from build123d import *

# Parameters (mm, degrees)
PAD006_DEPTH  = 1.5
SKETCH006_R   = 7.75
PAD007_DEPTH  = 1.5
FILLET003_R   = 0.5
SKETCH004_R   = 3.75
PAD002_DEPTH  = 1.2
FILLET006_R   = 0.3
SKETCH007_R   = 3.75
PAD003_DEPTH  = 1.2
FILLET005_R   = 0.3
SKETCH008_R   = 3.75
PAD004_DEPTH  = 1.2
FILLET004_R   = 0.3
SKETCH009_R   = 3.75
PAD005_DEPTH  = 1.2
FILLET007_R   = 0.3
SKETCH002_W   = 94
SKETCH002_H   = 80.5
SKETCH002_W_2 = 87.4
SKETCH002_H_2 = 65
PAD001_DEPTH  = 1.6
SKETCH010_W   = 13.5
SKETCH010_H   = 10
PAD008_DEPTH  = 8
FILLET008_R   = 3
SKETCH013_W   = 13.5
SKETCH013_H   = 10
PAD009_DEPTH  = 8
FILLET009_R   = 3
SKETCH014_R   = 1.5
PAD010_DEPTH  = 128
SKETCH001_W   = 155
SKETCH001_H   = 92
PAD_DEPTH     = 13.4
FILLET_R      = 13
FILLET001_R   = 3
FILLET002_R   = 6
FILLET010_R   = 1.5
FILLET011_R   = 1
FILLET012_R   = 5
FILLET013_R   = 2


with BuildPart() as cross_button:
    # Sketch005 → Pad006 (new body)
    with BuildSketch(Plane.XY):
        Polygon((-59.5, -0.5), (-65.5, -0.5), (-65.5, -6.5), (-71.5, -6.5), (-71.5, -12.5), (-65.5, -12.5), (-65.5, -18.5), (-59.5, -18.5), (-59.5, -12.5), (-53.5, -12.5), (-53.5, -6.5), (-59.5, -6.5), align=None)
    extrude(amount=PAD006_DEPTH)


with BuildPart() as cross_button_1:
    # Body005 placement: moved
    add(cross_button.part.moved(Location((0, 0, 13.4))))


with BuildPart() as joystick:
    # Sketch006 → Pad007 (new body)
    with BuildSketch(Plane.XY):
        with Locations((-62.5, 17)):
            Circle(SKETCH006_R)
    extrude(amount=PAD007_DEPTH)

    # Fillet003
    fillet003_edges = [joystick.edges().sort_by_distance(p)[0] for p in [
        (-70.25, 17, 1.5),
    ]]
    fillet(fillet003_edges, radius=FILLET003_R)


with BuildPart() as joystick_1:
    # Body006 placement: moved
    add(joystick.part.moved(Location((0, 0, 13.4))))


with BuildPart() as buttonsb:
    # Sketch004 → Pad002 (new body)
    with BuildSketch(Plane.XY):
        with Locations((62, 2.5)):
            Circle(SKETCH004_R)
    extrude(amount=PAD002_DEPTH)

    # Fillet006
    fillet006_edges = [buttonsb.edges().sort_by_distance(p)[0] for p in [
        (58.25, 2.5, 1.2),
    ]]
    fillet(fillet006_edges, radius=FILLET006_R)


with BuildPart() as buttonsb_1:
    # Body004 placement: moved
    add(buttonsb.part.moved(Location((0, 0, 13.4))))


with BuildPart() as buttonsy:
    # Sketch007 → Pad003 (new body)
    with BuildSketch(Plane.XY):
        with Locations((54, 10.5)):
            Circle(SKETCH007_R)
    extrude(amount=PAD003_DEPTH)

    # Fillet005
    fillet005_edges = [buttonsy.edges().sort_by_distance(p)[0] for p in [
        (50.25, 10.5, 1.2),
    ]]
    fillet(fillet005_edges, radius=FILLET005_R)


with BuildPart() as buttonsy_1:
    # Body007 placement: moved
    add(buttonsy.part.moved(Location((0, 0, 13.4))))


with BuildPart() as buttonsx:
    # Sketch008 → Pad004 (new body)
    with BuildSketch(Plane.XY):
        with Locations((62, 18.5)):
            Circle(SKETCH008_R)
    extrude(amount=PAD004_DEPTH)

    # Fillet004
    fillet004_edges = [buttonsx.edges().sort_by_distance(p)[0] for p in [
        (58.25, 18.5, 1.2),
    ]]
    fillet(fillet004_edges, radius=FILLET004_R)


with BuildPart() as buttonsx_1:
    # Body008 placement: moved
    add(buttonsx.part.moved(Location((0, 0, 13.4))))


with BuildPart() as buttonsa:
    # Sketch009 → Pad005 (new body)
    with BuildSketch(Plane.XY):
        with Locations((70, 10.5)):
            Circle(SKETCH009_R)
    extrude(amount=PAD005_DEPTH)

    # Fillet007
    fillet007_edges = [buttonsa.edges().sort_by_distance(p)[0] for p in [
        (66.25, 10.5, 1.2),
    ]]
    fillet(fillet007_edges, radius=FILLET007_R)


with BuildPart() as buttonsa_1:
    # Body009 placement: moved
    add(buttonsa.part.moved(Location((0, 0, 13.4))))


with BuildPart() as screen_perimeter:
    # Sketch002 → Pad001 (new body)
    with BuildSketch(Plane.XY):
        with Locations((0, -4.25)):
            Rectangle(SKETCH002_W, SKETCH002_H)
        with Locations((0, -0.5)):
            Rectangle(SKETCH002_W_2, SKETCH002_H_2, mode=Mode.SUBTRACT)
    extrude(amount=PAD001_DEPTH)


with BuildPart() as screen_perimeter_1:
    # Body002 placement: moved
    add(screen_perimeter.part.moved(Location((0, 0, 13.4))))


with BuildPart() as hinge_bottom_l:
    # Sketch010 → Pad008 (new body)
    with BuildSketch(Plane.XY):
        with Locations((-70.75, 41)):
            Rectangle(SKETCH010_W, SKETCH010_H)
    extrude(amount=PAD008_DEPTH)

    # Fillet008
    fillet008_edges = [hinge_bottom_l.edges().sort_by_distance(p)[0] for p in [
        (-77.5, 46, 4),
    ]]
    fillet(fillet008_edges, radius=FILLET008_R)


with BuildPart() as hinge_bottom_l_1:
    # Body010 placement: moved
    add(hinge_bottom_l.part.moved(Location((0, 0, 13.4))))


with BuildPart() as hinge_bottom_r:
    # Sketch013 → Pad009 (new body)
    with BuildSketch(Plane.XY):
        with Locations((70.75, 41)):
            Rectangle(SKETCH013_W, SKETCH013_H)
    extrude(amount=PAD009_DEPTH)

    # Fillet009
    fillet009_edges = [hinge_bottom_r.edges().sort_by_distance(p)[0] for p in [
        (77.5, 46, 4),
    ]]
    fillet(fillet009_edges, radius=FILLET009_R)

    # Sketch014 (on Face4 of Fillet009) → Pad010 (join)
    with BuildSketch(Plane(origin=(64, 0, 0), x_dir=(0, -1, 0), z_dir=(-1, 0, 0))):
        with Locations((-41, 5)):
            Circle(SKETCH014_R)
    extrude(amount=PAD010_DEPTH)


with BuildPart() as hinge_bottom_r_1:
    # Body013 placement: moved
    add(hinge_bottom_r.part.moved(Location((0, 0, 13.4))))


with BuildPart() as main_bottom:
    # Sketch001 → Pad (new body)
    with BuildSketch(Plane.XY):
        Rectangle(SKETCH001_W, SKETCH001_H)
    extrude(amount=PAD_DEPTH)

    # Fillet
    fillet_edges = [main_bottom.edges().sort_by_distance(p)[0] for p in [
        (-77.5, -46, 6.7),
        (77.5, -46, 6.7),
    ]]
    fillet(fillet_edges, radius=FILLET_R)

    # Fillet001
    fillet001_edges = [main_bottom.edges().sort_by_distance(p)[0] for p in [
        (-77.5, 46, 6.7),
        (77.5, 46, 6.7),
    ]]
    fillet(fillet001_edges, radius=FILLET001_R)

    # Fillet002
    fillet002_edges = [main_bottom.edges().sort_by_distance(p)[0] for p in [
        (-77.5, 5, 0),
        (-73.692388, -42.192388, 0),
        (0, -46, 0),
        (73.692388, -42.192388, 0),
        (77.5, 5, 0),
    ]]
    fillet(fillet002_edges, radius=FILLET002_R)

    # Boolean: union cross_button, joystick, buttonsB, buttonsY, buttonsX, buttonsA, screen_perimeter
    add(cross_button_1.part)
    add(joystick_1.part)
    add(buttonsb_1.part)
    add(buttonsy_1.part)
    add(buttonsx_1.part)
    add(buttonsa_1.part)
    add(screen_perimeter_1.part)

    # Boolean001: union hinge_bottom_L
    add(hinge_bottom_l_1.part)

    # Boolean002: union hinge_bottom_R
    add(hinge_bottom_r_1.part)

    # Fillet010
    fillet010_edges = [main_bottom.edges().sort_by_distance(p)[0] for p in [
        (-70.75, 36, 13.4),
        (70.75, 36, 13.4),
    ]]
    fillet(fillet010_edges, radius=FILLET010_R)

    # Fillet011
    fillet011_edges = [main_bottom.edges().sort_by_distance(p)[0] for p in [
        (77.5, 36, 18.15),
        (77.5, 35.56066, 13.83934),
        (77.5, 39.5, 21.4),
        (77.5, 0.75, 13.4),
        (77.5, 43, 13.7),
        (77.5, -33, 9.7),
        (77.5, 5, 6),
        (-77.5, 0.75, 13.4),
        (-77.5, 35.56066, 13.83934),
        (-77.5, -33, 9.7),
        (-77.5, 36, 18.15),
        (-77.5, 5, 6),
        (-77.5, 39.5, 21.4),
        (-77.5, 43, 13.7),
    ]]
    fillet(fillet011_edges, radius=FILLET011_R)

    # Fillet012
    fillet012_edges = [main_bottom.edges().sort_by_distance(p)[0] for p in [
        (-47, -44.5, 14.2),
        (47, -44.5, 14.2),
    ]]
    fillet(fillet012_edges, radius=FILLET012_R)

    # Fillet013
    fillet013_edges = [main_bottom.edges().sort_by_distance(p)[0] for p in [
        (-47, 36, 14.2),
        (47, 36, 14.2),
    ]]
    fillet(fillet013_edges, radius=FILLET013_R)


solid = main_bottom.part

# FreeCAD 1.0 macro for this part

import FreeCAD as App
import Part
import Sketcher
from FreeCAD import Vector
Q = App.Units.Quantity


def edges_at(feature, points):
    """Names of the edges that pass closest to the given points."""
    edges = feature.Shape.Edges
    near = lambda p: min(range(len(edges)), key=lambda i: edges[i].distToShape(Part.Vertex(*p))[0])
    return sorted({f"Edge{near(p) + 1}" for p in points})


def add_polygon(sketch, points):
    """Adds a closed chain of lines whose ends are joined by coincident constraints."""
    first, n = sketch.GeometryCount, len(points)
    for a, b in zip(points, points[1:] + points[:1]):
        sketch.addGeometry(Part.LineSegment(App.Vector(*a, 0), App.Vector(*b, 0)), False)
    for i in range(n):
        sketch.addConstraint(Sketcher.Constraint("Coincident", first + i, 2, first + (i + 1) % n, 1))

doc = App.newDocument("Part")
body = doc.addObject("PartDesign::Body", "Body")

# Sketch on XY plane
sketch1 = body.newObject("Sketcher::SketchObject", "Sketch")
sketch1.AttachmentSupport = (doc.getObject("XY_Plane"), [""])
sketch1.MapMode = "FlatFace"
add_polygon(sketch1, [(-60, 0), (-66, 0), (-66, -6), (-72, -6), (-72, -12), (-66, -12), (-66, -18), (-60, -18), (-60, -12), (-54, -12), (-54, -6), (-60, -6)])  # lines 0-11
sketch1.addConstraint([
    Sketcher.Constraint("Horizontal", 0),
    Sketcher.Constraint("Vertical", 1),
    Sketcher.Constraint("Horizontal", 2),
    Sketcher.Constraint("Vertical", 3),
    Sketcher.Constraint("Horizontal", 4),
    Sketcher.Constraint("Vertical", 5),
    Sketcher.Constraint("Horizontal", 6),
    Sketcher.Constraint("Vertical", 7),
    Sketcher.Constraint("Horizontal", 8),
    Sketcher.Constraint("Vertical", 9),
    Sketcher.Constraint("Horizontal", 10),
    Sketcher.Constraint("Vertical", 11),
    Sketcher.Constraint("Horizontal", 4, 2, 7, 2),
    Sketcher.Constraint("Horizontal", 2, 2, 9, 2),
    Sketcher.Constraint("Vertical", 1, 2, 4, 2),
    Sketcher.Constraint("Vertical", 7, 2, 10, 2),
    Sketcher.Constraint("Equal", 0, 2),
    Sketcher.Constraint("Equal", 6, 8),
    Sketcher.Constraint("Equal", 10, 1),
    Sketcher.Constraint("Equal", 1, 3),
    Sketcher.Constraint("Equal", 3, 5),
    Sketcher.Constraint("DistanceX", 0, 2, 0, 1, Q("6 mm")),
    Sketcher.Constraint("DistanceX", 0, 2, -1, 1, Q("65.5 mm")),
    Sketcher.Constraint("DistanceY", 0, 2, -1, 1, Q("0.5 mm")),
])
pad1 = body.newObject("PartDesign::Pad", "Pad")
pad1.Profile = sketch1
pad1.Length = 1.5
body2 = doc.addObject("PartDesign::Body", "Body001")
doc.recompute()

body.Placement = App.Placement(Vector(0, 0, 13.4), App.Rotation(Vector(0, 0, 1), 0))
boolean = body2.newObject("PartDesign::Boolean", "Boolean")
boolean.Type = "Fuse"
boolean.addObjects([body])
body3 = doc.addObject("PartDesign::Body", "Body002")

# Sketch on XY plane
sketch2 = body3.newObject("Sketcher::SketchObject", "Sketch001")
sketch2.AttachmentSupport = (doc.getObject("XY_Plane002"), [""])
sketch2.MapMode = "FlatFace"
sketch2.addGeometry(Part.Circle(Vector(-62, 17, 0), Vector(0, 0, 1), 8), False)
sketch2.addConstraint([
    Sketcher.Constraint("Diameter", 0, Q("15.5 mm")),
    Sketcher.Constraint("DistanceY", -1, 1, 0, 3, Q("17 mm")),
    Sketcher.Constraint("DistanceX", 0, 3, -1, 1, Q("62.5 mm")),
])
pad2 = body3.newObject("PartDesign::Pad", "Pad001")
pad2.Profile = sketch2
pad2.Length = 1.5
doc.recompute()

fillet = body3.newObject("PartDesign::Fillet", "Fillet")
fillet.Base = (pad2, edges_at(pad2, [(-70.25, 17, 1.5)]))
fillet.Radius = 0.5
body4 = doc.addObject("PartDesign::Body", "Body003")
doc.recompute()

body3.Placement = App.Placement(Vector(0, 0, 13.4), App.Rotation(Vector(0, 0, 1), 0))
boolean2 = body4.newObject("PartDesign::Boolean", "Boolean001")
boolean2.Type = "Fuse"
boolean2.addObjects([body3])
body5 = doc.addObject("PartDesign::Body", "Body004")

# Sketch on XY plane
sketch3 = body5.newObject("Sketcher::SketchObject", "Sketch002")
sketch3.AttachmentSupport = (doc.getObject("XY_Plane004"), [""])
sketch3.MapMode = "FlatFace"
sketch3.addGeometry(Part.Circle(Vector(62, 2.5, 0), Vector(0, 0, 1), 3.8), False)
sketch3.addConstraint([
    Sketcher.Constraint("Diameter", 0, Q("7.5 mm")),
    Sketcher.Constraint("DistanceX", -1, 1, 0, 3, Q("62 mm")),
    Sketcher.Constraint("DistanceY", -1, 1, 0, 3, Q("2.5 mm")),
])
pad3 = body5.newObject("PartDesign::Pad", "Pad002")
pad3.Profile = sketch3
pad3.Length = 1.2
doc.recompute()

fillet2 = body5.newObject("PartDesign::Fillet", "Fillet001")
fillet2.Base = (pad3, edges_at(pad3, [(58.25, 2.5, 1.2)]))
fillet2.Radius = 0.3
body6 = doc.addObject("PartDesign::Body", "Body005")
doc.recompute()

body5.Placement = App.Placement(Vector(0, 0, 13.4), App.Rotation(Vector(0, 0, 1), 0))
boolean3 = body6.newObject("PartDesign::Boolean", "Boolean002")
boolean3.Type = "Fuse"
boolean3.addObjects([body5])
body7 = doc.addObject("PartDesign::Body", "Body006")

# Sketch on XY plane
sketch4 = body7.newObject("Sketcher::SketchObject", "Sketch003")
sketch4.AttachmentSupport = (doc.getObject("XY_Plane006"), [""])
sketch4.MapMode = "FlatFace"
sketch4.addGeometry(Part.Circle(Vector(54, 10.5, 0), Vector(0, 0, 1), 3.8), False)
sketch4.addConstraint([
    Sketcher.Constraint("Diameter", 0, Q("7.5 mm")),
    Sketcher.Constraint("DistanceX", -1, 1, 0, 3, Q("54 mm")),
    Sketcher.Constraint("DistanceY", -1, 1, 0, 3, Q("10.5 mm")),
])
pad4 = body7.newObject("PartDesign::Pad", "Pad003")
pad4.Profile = sketch4
pad4.Length = 1.2
doc.recompute()

fillet3 = body7.newObject("PartDesign::Fillet", "Fillet002")
fillet3.Base = (pad4, edges_at(pad4, [(50.25, 10.5, 1.2)]))
fillet3.Radius = 0.3
body8 = doc.addObject("PartDesign::Body", "Body007")
doc.recompute()

body7.Placement = App.Placement(Vector(0, 0, 13.4), App.Rotation(Vector(0, 0, 1), 0))
boolean4 = body8.newObject("PartDesign::Boolean", "Boolean003")
boolean4.Type = "Fuse"
boolean4.addObjects([body7])
body9 = doc.addObject("PartDesign::Body", "Body008")

# Sketch on XY plane
sketch5 = body9.newObject("Sketcher::SketchObject", "Sketch004")
sketch5.AttachmentSupport = (doc.getObject("XY_Plane008"), [""])
sketch5.MapMode = "FlatFace"
sketch5.addGeometry(Part.Circle(Vector(62, 18.5, 0), Vector(0, 0, 1), 3.8), False)
sketch5.addConstraint([
    Sketcher.Constraint("Diameter", 0, Q("7.5 mm")),
    Sketcher.Constraint("DistanceX", -1, 1, 0, 3, Q("62 mm")),
    Sketcher.Constraint("DistanceY", -1, 1, 0, 3, Q("18.5 mm")),
])
pad5 = body9.newObject("PartDesign::Pad", "Pad004")
pad5.Profile = sketch5
pad5.Length = 1.2
doc.recompute()

fillet4 = body9.newObject("PartDesign::Fillet", "Fillet003")
fillet4.Base = (pad5, edges_at(pad5, [(58.25, 18.5, 1.2)]))
fillet4.Radius = 0.3
body10 = doc.addObject("PartDesign::Body", "Body009")
doc.recompute()

body9.Placement = App.Placement(Vector(0, 0, 13.4), App.Rotation(Vector(0, 0, 1), 0))
boolean5 = body10.newObject("PartDesign::Boolean", "Boolean004")
boolean5.Type = "Fuse"
boolean5.addObjects([body9])
body11 = doc.addObject("PartDesign::Body", "Body010")

# Sketch on XY plane
sketch6 = body11.newObject("Sketcher::SketchObject", "Sketch005")
sketch6.AttachmentSupport = (doc.getObject("XY_Plane010"), [""])
sketch6.MapMode = "FlatFace"
sketch6.addGeometry(Part.Circle(Vector(70, 10.5, 0), Vector(0, 0, 1), 3.8), False)
sketch6.addConstraint([
    Sketcher.Constraint("Diameter", 0, Q("7.5 mm")),
    Sketcher.Constraint("DistanceX", -1, 1, 0, 3, Q("70 mm")),
    Sketcher.Constraint("DistanceY", -1, 1, 0, 3, Q("10.5 mm")),
])
pad6 = body11.newObject("PartDesign::Pad", "Pad005")
pad6.Profile = sketch6
pad6.Length = 1.2
doc.recompute()

fillet5 = body11.newObject("PartDesign::Fillet", "Fillet004")
fillet5.Base = (pad6, edges_at(pad6, [(66.25, 10.5, 1.2)]))
fillet5.Radius = 0.3
body12 = doc.addObject("PartDesign::Body", "Body011")
doc.recompute()

body11.Placement = App.Placement(Vector(0, 0, 13.4), App.Rotation(Vector(0, 0, 1), 0))
boolean6 = body12.newObject("PartDesign::Boolean", "Boolean005")
boolean6.Type = "Fuse"
boolean6.addObjects([body11])
body13 = doc.addObject("PartDesign::Body", "Body012")

# Sketch on XY plane
sketch7 = body13.newObject("Sketcher::SketchObject", "Sketch006")
sketch7.AttachmentSupport = (doc.getObject("XY_Plane012"), [""])
sketch7.MapMode = "FlatFace"
add_polygon(sketch7, [(-47, 36), (-47, -44), (47, -44), (47, 36)])  # lines 0-3
add_polygon(sketch7, [(44, -33), (-44, -33), (-44, 32), (44, 32)])  # lines 4-7
sketch7.addConstraint([
    Sketcher.Constraint("Vertical", 0),
    Sketcher.Constraint("Horizontal", 1),
    Sketcher.Constraint("Vertical", 2),
    Sketcher.Constraint("Horizontal", 3),
    Sketcher.Constraint("Horizontal", 4),
    Sketcher.Constraint("Vertical", 5),
    Sketcher.Constraint("Horizontal", 6),
    Sketcher.Constraint("Vertical", 7),
    Sketcher.Constraint("DistanceX", 1, 1, 1, 2, Q("94 mm")),
    Sketcher.Constraint("DistanceY", 5, 1, 5, 2, Q("65 mm")),
    Sketcher.Constraint("DistanceX", 4, 2, 4, 1, Q("87.4 mm")),
    Sketcher.Constraint("DistanceY", 0, 2, 0, 1, Q("80.5 mm")),
    Sketcher.Constraint("DistanceX", 0, 2, -1, 1, Q("47 mm")),
    Sketcher.Constraint("DistanceY", -1, 1, 2, 2, Q("36 mm")),
    Sketcher.Constraint("DistanceY", 4, 2, -1, 1, Q("33 mm")),
    Sketcher.Constraint("DistanceX", 4, 2, -1, 1, Q("43.7 mm")),
])
pad7 = body13.newObject("PartDesign::Pad", "Pad006")
pad7.Profile = sketch7
pad7.Length = 1.6
body14 = doc.addObject("PartDesign::Body", "Body013")
doc.recompute()

body13.Placement = App.Placement(Vector(0, 0, 13.4), App.Rotation(Vector(0, 0, 1), 0))
boolean7 = body14.newObject("PartDesign::Boolean", "Boolean006")
boolean7.Type = "Fuse"
boolean7.addObjects([body13])
body15 = doc.addObject("PartDesign::Body", "Body014")

# Sketch on XY plane
sketch8 = body15.newObject("Sketcher::SketchObject", "Sketch007")
sketch8.AttachmentSupport = (doc.getObject("XY_Plane014"), [""])
sketch8.MapMode = "FlatFace"
add_polygon(sketch8, [(-78, 46), (-78, 36), (-64, 36), (-64, 46)])  # lines 0-3
sketch8.addConstraint([
    Sketcher.Constraint("Vertical", 0),
    Sketcher.Constraint("Horizontal", 1),
    Sketcher.Constraint("Vertical", 2),
    Sketcher.Constraint("Horizontal", 3),
    Sketcher.Constraint("DistanceY", 0, 2, 0, 1, Q("10 mm")),
    Sketcher.Constraint("DistanceX", 1, 1, 1, 2, Q("13.5 mm")),
    Sketcher.Constraint("DistanceY", -1, 1, 0, 2, Q("36 mm")),
    Sketcher.Constraint("DistanceX", 1, 2, -1, 1, Q("64 mm")),
])
pad8 = body15.newObject("PartDesign::Pad", "Pad007")
pad8.Profile = sketch8
pad8.Length = 8
doc.recompute()

fillet6 = body15.newObject("PartDesign::Fillet", "Fillet005")
fillet6.Base = (pad8, edges_at(pad8, [(-77.5, 46, 4)]))
fillet6.Radius = 3
body16 = doc.addObject("PartDesign::Body", "Body015")
doc.recompute()

body15.Placement = App.Placement(Vector(0, 0, 13.4), App.Rotation(Vector(0, 0, 1), 0))
boolean8 = body16.newObject("PartDesign::Boolean", "Boolean007")
boolean8.Type = "Fuse"
boolean8.addObjects([body15])
body17 = doc.addObject("PartDesign::Body", "Body016")

# Sketch on XY plane
sketch9 = body17.newObject("Sketcher::SketchObject", "Sketch008")
sketch9.AttachmentSupport = (doc.getObject("XY_Plane016"), [""])
sketch9.MapMode = "FlatFace"
add_polygon(sketch9, [(64, 46), (64, 36), (78, 36), (78, 46)])  # lines 0-3
sketch9.addConstraint([
    Sketcher.Constraint("Vertical", 0),
    Sketcher.Constraint("Horizontal", 1),
    Sketcher.Constraint("Vertical", 2),
    Sketcher.Constraint("Horizontal", 3),
    Sketcher.Constraint("DistanceY", 0, 2, 0, 1, Q("10 mm")),
    Sketcher.Constraint("DistanceX", 1, 1, 1, 2, Q("13.5 mm")),
    Sketcher.Constraint("DistanceX", -1, 1, 0, 2, Q("64 mm")),
    Sketcher.Constraint("DistanceY", -1, 1, 0, 2, Q("36 mm")),
])
pad9 = body17.newObject("PartDesign::Pad", "Pad008")
pad9.Profile = sketch9
pad9.Length = 8
doc.recompute()

fillet7 = body17.newObject("PartDesign::Fillet", "Fillet006")
fillet7.Base = (pad9, edges_at(pad9, [(77.5, 46, 4)]))
fillet7.Radius = 3

# Sketch on YZ plane
sketch10 = body17.newObject("Sketcher::SketchObject", "Sketch009")
sketch10.AttachmentSupport = (doc.getObject("YZ_Plane016"), [""])
sketch10.MapMode = "FlatFace"
sketch10.AttachmentOffset = App.Placement(Vector(0, 0, 64), App.Rotation())
sketch10.addGeometry(Part.Circle(Vector(41, 5, 0), Vector(0, 0, 1), 1.5), False)
sketch10.addConstraint([
    Sketcher.Constraint("Diameter", 0, Q("3 mm")),
    Sketcher.Constraint("DistanceX", -1, 1, 0, 3, Q("41 mm")),
    Sketcher.Constraint("DistanceY", -1, 1, 0, 3, Q("5 mm")),
])
pad10 = body17.newObject("PartDesign::Pad", "Pad009")
pad10.Profile = sketch10
pad10.Length = 128
pad10.Reversed = True
body18 = doc.addObject("PartDesign::Body", "Body017")
doc.recompute()

body17.Placement = App.Placement(Vector(0, 0, 13.4), App.Rotation(Vector(0, 0, 1), 0))
boolean9 = body18.newObject("PartDesign::Boolean", "Boolean008")
boolean9.Type = "Fuse"
boolean9.addObjects([body17])
body19 = doc.addObject("PartDesign::Body", "Body018")

# Sketch on XY plane
sketch11 = body19.newObject("Sketcher::SketchObject", "Sketch010")
sketch11.AttachmentSupport = (doc.getObject("XY_Plane018"), [""])
sketch11.MapMode = "FlatFace"
add_polygon(sketch11, [(-78, 46), (-78, -46), (78, -46), (78, 46)])  # lines 0-3
sketch11.addConstraint([
    Sketcher.Constraint("Vertical", 0),
    Sketcher.Constraint("Horizontal", 1),
    Sketcher.Constraint("Vertical", 2),
    Sketcher.Constraint("Horizontal", 3),
    Sketcher.Constraint("Symmetric", 0, 2, 2, 2, -1, 1),
    Sketcher.Constraint("DistanceX", 1, 1, 1, 2, Q("155 mm")),
    Sketcher.Constraint("DistanceY", 0, 2, 0, 1, Q("92 mm")),
])
pad11 = body19.newObject("PartDesign::Pad", "Pad010")
pad11.Profile = sketch11
pad11.Length = 13.4
doc.recompute()

fillet8 = body19.newObject("PartDesign::Fillet", "Fillet007")
fillet8.Base = (pad11, edges_at(pad11, [(-77.5, -46, 6.7), (77.5, -46, 6.7)]))
fillet8.Radius = 13
doc.recompute()

fillet9 = body19.newObject("PartDesign::Fillet", "Fillet008")
fillet9.Base = (fillet8, edges_at(fillet8, [(-77.5, 46, 6.7), (77.5, 46, 6.7)]))
fillet9.Radius = 3
doc.recompute()

fillet10 = body19.newObject("PartDesign::Fillet", "Fillet009")
fillet10.Base = (fillet9, edges_at(fillet9, [
    (-77.5, 5, 0),
    (-73.692, -42.192, 0),
    (0, -46, 0),
    (73.692, -42.192, 0),
    (77.5, 5, 0),
]))
fillet10.Radius = 6
doc.recompute()

boolean10 = body19.newObject("PartDesign::Boolean", "Boolean009")
boolean10.Type = "Fuse"
boolean10.addObjects([body2])
doc.recompute()

boolean11 = body19.newObject("PartDesign::Boolean", "Boolean010")
boolean11.Type = "Fuse"
boolean11.addObjects([body4])
doc.recompute()

boolean12 = body19.newObject("PartDesign::Boolean", "Boolean011")
boolean12.Type = "Fuse"
boolean12.addObjects([body6])
doc.recompute()

boolean13 = body19.newObject("PartDesign::Boolean", "Boolean012")
boolean13.Type = "Fuse"
boolean13.addObjects([body8])
doc.recompute()

boolean14 = body19.newObject("PartDesign::Boolean", "Boolean013")
boolean14.Type = "Fuse"
boolean14.addObjects([body10])
doc.recompute()

boolean15 = body19.newObject("PartDesign::Boolean", "Boolean014")
boolean15.Type = "Fuse"
boolean15.addObjects([body12])
doc.recompute()

boolean16 = body19.newObject("PartDesign::Boolean", "Boolean015")
boolean16.Type = "Fuse"
boolean16.addObjects([body14])
doc.recompute()

boolean17 = body19.newObject("PartDesign::Boolean", "Boolean016")
boolean17.Type = "Fuse"
boolean17.addObjects([body16])
doc.recompute()

boolean18 = body19.newObject("PartDesign::Boolean", "Boolean017")
boolean18.Type = "Fuse"
boolean18.addObjects([body18])
doc.recompute()

fillet11 = body19.newObject("PartDesign::Fillet", "Fillet010")
fillet11.Base = (boolean18, edges_at(boolean18, [(-70.75, 36, 13.4), (70.75, 36, 13.4)]))
fillet11.Radius = 1.5
doc.recompute()

fillet12 = body19.newObject("PartDesign::Fillet", "Fillet011")
fillet12.Base = (fillet11, edges_at(fillet11, [
    (77.5, 36, 18.15),
    (77.5, 35.561, 13.839),
    (77.5, 39.5, 21.4),
    (77.5, 0.75, 13.4),
    (77.5, 43, 13.7),
    (77.5, -33, 9.7),
    (77.5, 5, 6),
    (-77.5, 0.75, 13.4),
    (-77.5, 35.561, 13.839),
    (-77.5, -33, 9.7),
    (-77.5, 36, 18.15),
    (-77.5, 5, 6),
    (-77.5, 39.5, 21.4),
    (-77.5, 43, 13.7),
]))
fillet12.Radius = 1
doc.recompute()

fillet13 = body19.newObject("PartDesign::Fillet", "Fillet012")
fillet13.Base = (fillet12, edges_at(fillet12, [(-47, -44.5, 14.2), (47, -44.5, 14.2)]))
fillet13.Radius = 5
doc.recompute()

fillet14 = body19.newObject("PartDesign::Fillet", "Fillet013")
fillet14.Base = (fillet13, edges_at(fillet13, [(-47, 36, 14.2), (47, 36, 14.2)]))
fillet14.Radius = 2

doc.recompute()
